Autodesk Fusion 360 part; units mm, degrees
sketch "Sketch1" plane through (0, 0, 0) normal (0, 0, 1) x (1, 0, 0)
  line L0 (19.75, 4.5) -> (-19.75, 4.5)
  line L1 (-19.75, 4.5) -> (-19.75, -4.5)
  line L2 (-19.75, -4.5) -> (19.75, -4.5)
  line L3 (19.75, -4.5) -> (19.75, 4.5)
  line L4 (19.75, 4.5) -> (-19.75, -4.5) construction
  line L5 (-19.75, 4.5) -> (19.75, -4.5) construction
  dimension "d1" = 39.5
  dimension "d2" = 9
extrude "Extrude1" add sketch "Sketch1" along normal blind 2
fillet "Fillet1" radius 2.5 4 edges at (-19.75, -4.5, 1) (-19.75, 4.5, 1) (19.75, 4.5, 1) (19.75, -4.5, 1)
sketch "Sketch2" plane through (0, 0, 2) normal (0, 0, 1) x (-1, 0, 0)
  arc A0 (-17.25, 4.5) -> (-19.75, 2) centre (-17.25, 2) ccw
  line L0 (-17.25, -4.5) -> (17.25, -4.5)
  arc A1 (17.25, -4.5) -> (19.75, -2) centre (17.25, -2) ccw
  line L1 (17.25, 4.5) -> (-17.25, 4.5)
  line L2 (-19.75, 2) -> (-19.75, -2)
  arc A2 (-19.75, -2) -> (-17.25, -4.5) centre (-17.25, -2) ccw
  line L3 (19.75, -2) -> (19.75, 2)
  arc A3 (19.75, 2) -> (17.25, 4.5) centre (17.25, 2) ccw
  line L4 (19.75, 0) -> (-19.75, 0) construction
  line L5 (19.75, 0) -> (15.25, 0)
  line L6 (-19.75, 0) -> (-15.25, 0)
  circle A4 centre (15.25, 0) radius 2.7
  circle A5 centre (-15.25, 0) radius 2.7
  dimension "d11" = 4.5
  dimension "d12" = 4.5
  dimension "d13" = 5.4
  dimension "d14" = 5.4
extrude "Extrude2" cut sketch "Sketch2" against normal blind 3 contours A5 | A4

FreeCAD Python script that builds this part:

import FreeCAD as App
import Part
import Sketcher
from FreeCAD import Vector
Q = App.Units.Quantity


def edges_at(feature, points):
    """Names of the edges that pass closest to the given points."""
    edges = feature.Shape.Edges
    near = lambda p: min(range(len(edges)), key=lambda i: edges[i].distToShape(Part.Vertex(*p))[0])
    return sorted({f"Edge{near(p) + 1}" for p in points})

doc = App.newDocument("Part")
params = doc.addObject("Spreadsheet::Sheet", "Params")
for row, (alias, value) in enumerate([
    ("sketch1_height", "9 mm"),
    ("sketch1_width", "39.5 mm"),
    ("pad1_length", "2 mm"),
    ("fillet_radius", "2.5 mm"),
    ("sketch2_diameter", "5.4 mm"),
    ("pocket1_length", "3 mm"),
], start=1):
    params.set(f"A{row}", alias)
    params.set(f"B{row}", "=" + value)
    params.setAlias(f"B{row}", alias)

body = doc.addObject("PartDesign::Body", "Body")

sketch1 = body.newObject("Sketcher::SketchObject", "Sketch")
sketch1.AttachmentSupport = (doc.getObject("XY_Plane"), [""])
sketch1.MapMode = "FlatFace"
sketch1.addGeometry([
    Part.LineSegment(Vector(19.75, -4.5, 0), Vector(19.75, 4.5, 0)),
    Part.LineSegment(Vector(19.75, 4.5, 0), Vector(-19.75, 4.5, 0)),
    Part.LineSegment(Vector(-19.75, 4.5, 0), Vector(-19.75, -4.5, 0)),
    Part.LineSegment(Vector(-19.75, -4.5, 0), Vector(19.75, -4.5, 0)),
], False)
sketch1.addConstraint([
    Sketcher.Constraint("Coincident", 0, 2, 1, 1),
    Sketcher.Constraint("Coincident", 1, 2, 2, 1),
    Sketcher.Constraint("Coincident", 2, 2, 3, 1),
    Sketcher.Constraint("Coincident", 3, 2, 0, 1),
    Sketcher.Constraint("Vertical", 0),
    Sketcher.Constraint("Horizontal", 1),
    Sketcher.Constraint("Vertical", 2),
    Sketcher.Constraint("Horizontal", 3),
    Sketcher.Constraint("Symmetric", 0, 2, 2, 2, -1, 1),
    Sketcher.Constraint("DistanceY", 0, 1, 0, 2, Q("9 mm")),
    Sketcher.Constraint("DistanceX", 1, 2, 1, 1, Q("39.5 mm")),
])
sketch1.setExpression("Constraints[9]", "Params.sketch1_height")
sketch1.setExpression("Constraints[10]", "Params.sketch1_width")
pad1 = body.newObject("PartDesign::Pad", "Pad")
pad1.Profile = sketch1
pad1.setExpression("Length", "Params.pad1_length")
doc.recompute()

fillet = body.newObject("PartDesign::Fillet", "Fillet")
fillet.Base = (pad1, edges_at(pad1, [
    (-19.75, -4.5, 1),
    (-19.75, 4.5, 1),
    (19.75, 4.5, 1),
    (19.75, -4.5, 1),
]))
fillet.setExpression("Radius", "Params.fillet_radius")

sketch2 = body.newObject("Sketcher::SketchObject", "Sketch001")
sketch2.AttachmentSupport = (doc.getObject("XY_Plane"), [""])
sketch2.MapMode = "FlatFace"
sketch2.AttachmentOffset = App.Placement(Vector(0, 0, 2), App.Rotation())
sketch2.addGeometry([
    Part.Circle(Vector(15.25, 0, 0), Vector(0, 0, 1), 2.7),
    Part.Circle(Vector(-15.25, 0, 0), Vector(0, 0, 1), 2.7),
], False)
sketch2.addConstraint([
    Sketcher.Constraint("Equal", 0, 1),
    Sketcher.Constraint("Symmetric", 0, 3, 1, 3, -1, 1),
    Sketcher.Constraint("PointOnObject", 0, 3, -1),
    Sketcher.Constraint("Diameter", 0, Q("5.4 mm")),
    Sketcher.Constraint("DistanceX", 1, 3, 0, 3, Q("30.5 mm")),
])
sketch2.setExpression("Constraints[3]", "Params.sketch2_diameter")
pocket1 = body.newObject("PartDesign::Pocket", "Pocket")
pocket1.Profile = sketch2
pocket1.setExpression("Length", "Params.pocket1_length")

doc.recompute()
